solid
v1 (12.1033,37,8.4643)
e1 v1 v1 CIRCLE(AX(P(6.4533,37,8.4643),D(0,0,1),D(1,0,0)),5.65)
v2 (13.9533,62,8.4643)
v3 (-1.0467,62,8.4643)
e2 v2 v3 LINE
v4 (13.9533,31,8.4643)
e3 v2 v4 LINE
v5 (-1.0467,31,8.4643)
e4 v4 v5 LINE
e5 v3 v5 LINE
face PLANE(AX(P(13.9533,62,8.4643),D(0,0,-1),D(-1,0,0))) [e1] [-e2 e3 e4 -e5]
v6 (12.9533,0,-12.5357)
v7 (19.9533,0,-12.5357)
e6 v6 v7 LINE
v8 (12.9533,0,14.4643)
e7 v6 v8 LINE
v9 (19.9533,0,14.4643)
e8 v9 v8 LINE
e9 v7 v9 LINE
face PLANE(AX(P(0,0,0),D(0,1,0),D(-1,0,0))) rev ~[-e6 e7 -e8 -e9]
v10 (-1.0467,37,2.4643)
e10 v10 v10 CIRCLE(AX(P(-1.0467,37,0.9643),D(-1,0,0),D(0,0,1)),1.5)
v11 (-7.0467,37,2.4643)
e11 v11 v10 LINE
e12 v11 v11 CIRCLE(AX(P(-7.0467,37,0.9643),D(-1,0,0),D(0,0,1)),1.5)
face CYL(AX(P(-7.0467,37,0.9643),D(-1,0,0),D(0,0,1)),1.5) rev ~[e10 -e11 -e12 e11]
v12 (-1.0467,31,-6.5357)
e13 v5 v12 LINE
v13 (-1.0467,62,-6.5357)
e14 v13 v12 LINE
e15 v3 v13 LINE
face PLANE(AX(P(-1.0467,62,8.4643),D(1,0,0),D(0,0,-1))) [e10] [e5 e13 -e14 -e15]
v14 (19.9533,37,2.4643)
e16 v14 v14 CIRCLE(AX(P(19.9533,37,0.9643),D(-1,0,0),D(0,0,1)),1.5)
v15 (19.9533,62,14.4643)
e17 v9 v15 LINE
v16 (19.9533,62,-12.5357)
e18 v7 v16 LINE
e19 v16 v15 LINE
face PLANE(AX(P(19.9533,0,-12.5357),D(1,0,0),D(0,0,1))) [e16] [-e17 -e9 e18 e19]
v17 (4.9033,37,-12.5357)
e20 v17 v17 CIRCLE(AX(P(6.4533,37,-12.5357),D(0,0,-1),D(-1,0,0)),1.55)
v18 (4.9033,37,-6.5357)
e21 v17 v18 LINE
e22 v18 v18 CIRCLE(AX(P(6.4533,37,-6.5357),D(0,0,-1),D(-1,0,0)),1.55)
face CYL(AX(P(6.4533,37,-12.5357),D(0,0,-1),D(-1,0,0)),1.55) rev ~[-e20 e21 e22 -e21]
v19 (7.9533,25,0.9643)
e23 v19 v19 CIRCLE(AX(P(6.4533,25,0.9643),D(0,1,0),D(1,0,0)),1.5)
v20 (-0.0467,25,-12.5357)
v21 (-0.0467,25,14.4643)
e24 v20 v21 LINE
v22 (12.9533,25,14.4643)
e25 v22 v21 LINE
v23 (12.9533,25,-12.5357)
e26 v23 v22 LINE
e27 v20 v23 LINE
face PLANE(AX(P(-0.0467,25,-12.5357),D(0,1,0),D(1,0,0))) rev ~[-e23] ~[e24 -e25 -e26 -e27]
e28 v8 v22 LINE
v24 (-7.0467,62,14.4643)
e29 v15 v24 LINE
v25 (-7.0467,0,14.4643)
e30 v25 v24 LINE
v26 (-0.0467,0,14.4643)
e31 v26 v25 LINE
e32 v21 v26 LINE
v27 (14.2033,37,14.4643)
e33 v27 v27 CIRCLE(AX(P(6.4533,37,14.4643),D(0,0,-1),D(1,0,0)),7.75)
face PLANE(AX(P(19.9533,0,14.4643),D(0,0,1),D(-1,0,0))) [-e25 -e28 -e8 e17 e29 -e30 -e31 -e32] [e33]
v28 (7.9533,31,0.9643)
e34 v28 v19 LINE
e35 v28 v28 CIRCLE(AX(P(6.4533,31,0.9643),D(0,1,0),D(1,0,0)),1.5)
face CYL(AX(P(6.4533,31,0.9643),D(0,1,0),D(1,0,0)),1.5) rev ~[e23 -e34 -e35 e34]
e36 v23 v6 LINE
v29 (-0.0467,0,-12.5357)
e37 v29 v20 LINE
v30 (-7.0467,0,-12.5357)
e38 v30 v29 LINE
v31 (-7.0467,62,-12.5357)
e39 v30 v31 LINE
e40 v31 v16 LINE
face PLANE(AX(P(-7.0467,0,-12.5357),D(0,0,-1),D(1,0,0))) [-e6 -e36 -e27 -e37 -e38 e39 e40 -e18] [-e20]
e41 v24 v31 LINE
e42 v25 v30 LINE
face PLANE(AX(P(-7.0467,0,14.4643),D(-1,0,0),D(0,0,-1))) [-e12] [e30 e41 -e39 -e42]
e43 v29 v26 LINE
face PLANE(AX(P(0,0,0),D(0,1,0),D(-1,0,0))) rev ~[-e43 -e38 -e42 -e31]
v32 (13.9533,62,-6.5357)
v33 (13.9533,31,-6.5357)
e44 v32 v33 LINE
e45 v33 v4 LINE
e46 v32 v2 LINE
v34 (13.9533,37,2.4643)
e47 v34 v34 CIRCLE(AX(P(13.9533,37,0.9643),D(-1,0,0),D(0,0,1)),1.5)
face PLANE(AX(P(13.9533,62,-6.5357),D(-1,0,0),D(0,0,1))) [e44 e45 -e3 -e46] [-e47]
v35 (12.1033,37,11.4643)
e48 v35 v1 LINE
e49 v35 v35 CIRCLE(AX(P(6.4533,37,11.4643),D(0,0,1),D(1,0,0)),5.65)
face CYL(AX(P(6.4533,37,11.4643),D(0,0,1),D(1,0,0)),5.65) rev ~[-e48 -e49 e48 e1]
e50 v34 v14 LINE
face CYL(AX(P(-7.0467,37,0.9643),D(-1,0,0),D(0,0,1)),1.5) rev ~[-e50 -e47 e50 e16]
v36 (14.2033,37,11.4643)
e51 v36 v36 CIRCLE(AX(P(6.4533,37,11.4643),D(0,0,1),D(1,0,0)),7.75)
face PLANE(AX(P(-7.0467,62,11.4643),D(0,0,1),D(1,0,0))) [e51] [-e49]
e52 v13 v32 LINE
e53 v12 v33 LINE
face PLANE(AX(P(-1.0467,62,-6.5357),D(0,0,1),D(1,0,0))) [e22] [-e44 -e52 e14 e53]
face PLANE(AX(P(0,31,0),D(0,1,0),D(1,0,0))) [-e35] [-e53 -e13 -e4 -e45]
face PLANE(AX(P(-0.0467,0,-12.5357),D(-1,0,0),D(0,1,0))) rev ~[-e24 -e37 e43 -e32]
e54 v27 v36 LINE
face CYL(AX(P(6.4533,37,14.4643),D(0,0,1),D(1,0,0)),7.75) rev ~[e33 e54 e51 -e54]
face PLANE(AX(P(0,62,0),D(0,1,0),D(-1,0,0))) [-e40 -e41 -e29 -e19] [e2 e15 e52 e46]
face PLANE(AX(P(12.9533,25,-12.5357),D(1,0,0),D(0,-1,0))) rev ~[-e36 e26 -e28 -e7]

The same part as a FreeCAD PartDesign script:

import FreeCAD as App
import Part
import Sketcher


def add_polygon(sketch, points):
    """Adds a closed chain of lines whose ends are joined by coincident constraints."""
    first, n = sketch.GeometryCount, len(points)
    for a, b in zip(points, points[1:] + points[:1]):
        sketch.addGeometry(Part.LineSegment(App.Vector(*a, 0), App.Vector(*b, 0)), False)
    for i in range(n):
        sketch.addConstraint(Sketcher.Constraint("Coincident", first + i, 2, first + (i + 1) % n, 1))

doc = App.newDocument("Part")
body = doc.addObject("PartDesign::Body", "Body")

# Sketch on XZ plane
sketch1 = body.newObject("Sketcher::SketchObject", "Sketch")
sketch1.AttachmentSupport = (doc.getObject("XZ_Plane"), [""])
sketch1.MapMode = "FlatFace"
add_polygon(sketch1, [(-7, 14), (20, 14), (20, -13), (-7, -13)])  # lines 0-3
sketch1.addConstraint(Sketcher.Constraint("Horizontal", 0))
sketch1.addConstraint(Sketcher.Constraint("Vertical", 1))
sketch1.addConstraint(Sketcher.Constraint("Horizontal", 2))
sketch1.addConstraint(Sketcher.Constraint("Vertical", 3))
sketch1.addConstraint(Sketcher.Constraint("Equal", 2, 1))
sketch1.addConstraint(Sketcher.Constraint("DistanceX", 0, 1, 0, 2, 27.0))
sketch1.addConstraint(Sketcher.Constraint("DistanceX", -1, 1, 0, 2, 19.9533))
sketch1.addConstraint(Sketcher.Constraint("DistanceY", -1, 1, 0, 2, 14.4643))
pad1 = body.newObject("PartDesign::Pad", "Pad")
pad1.Profile = sketch1
pad1.Length = 62
pad1.Reversed = True

# Sketch on XZ plane
sketch2 = body.newObject("Sketcher::SketchObject", "Sketch001")
sketch2.AttachmentSupport = (doc.getObject("XZ_Plane"), [""])
sketch2.MapMode = "FlatFace"
sketch2.AttachmentOffset = App.Placement(App.Vector(0, 0, -62), App.Rotation())
add_polygon(sketch2, [(14, -7), (-1, -7), (-1, 8), (14, 8)])  # lines 0-3
sketch2.addConstraint(Sketcher.Constraint("Horizontal", 0))
sketch2.addConstraint(Sketcher.Constraint("Vertical", 1))
sketch2.addConstraint(Sketcher.Constraint("Horizontal", 2))
sketch2.addConstraint(Sketcher.Constraint("Vertical", 3))
sketch2.addConstraint(Sketcher.Constraint("Equal", 2, 1))
sketch2.addConstraint(Sketcher.Constraint("DistanceX", 0, 2, 0, 1, 15.0))
sketch2.addConstraint(Sketcher.Constraint("DistanceX", 0, 2, -1, 1, 1.0467))
sketch2.addConstraint(Sketcher.Constraint("DistanceY", 0, 2, -1, 1, 6.5357))
pocket1 = body.newObject("PartDesign::Pocket", "Pocket")
pocket1.Profile = sketch2
pocket1.Length = 31
pocket1.Reversed = True

# Sketch on XY plane
sketch3 = body.newObject("Sketcher::SketchObject", "Sketch002")
sketch3.AttachmentSupport = (doc.getObject("XY_Plane"), [""])
sketch3.MapMode = "FlatFace"
sketch3.AttachmentOffset = App.Placement(App.Vector(0, 0, -12.5357), App.Rotation())
add_polygon(sketch3, [(13, 0), (0, 0), (0, 25), (13, 25)])  # lines 0-3
sketch3.addConstraint(Sketcher.Constraint("Horizontal", 0))
sketch3.addConstraint(Sketcher.Constraint("Vertical", 1))
sketch3.addConstraint(Sketcher.Constraint("Horizontal", 2))
sketch3.addConstraint(Sketcher.Constraint("Vertical", 3))
sketch3.addConstraint(Sketcher.Constraint("PointOnObject", 0, 2, -1))
sketch3.addConstraint(Sketcher.Constraint("DistanceY", 1, 1, 1, 2, 25.0))
sketch3.addConstraint(Sketcher.Constraint("DistanceX", 0, 2, 0, 1, 13.0))
sketch3.addConstraint(Sketcher.Constraint("DistanceX", 0, 2, -1, 1, 0.0467))
pocket2 = body.newObject("PartDesign::Pocket", "Pocket001")
pocket2.Profile = sketch3
pocket2.Length = 30
pocket2.Reversed = True

# Sketch on XY plane
sketch4 = body.newObject("Sketcher::SketchObject", "Sketch003")
sketch4.AttachmentSupport = (doc.getObject("XY_Plane"), [""])
sketch4.MapMode = "FlatFace"
sketch4.AttachmentOffset = App.Placement(App.Vector(0, 0, -12.5357), App.Rotation())
sketch4.addGeometry(Part.Circle(App.Vector(6.5, 37, 0), App.Vector(0, 0, 1), 1.6), False)
sketch4.addConstraint(Sketcher.Constraint("Diameter", 0, 3.1))
sketch4.addConstraint(Sketcher.Constraint("DistanceY", -1, 1, 0, 3, 37.0))
sketch4.addConstraint(Sketcher.Constraint("DistanceX", -1, 1, 0, 3, 6.4533))
pocket3 = body.newObject("PartDesign::Pocket", "Pocket002")
pocket3.Profile = sketch4
pocket3.Length = 7
pocket3.Reversed = True

# Sketch on XY plane
sketch5 = body.newObject("Sketcher::SketchObject", "Sketch004")
sketch5.AttachmentSupport = (doc.getObject("XY_Plane"), [""])
sketch5.MapMode = "FlatFace"
sketch5.AttachmentOffset = App.Placement(App.Vector(0, 0, 14.4643), App.Rotation())
sketch5.addGeometry(Part.Circle(App.Vector(6, 37, 0), App.Vector(0, 0, 1), 8), False)
sketch5.addConstraint(Sketcher.Constraint("Diameter", 0, 15.5))
sketch5.addConstraint(Sketcher.Constraint("DistanceY", -1, 1, 0, 3, 37.0))
sketch5.addConstraint(Sketcher.Constraint("DistanceX", -1, 1, 0, 3, 6.4533))
pocket4 = body.newObject("PartDesign::Pocket", "Pocket003")
pocket4.Profile = sketch5
pocket4.Length = 3

# Sketch on XY plane
sketch6 = body.newObject("Sketcher::SketchObject", "Sketch005")
sketch6.AttachmentSupport = (doc.getObject("XY_Plane"), [""])
sketch6.MapMode = "FlatFace"
sketch6.AttachmentOffset = App.Placement(App.Vector(0, 0, 11.4643), App.Rotation())
sketch6.addGeometry(Part.Circle(App.Vector(6, 37, 0), App.Vector(0, 0, 1), 6), False)
sketch6.addConstraint(Sketcher.Constraint("Diameter", 0, 11.3))
sketch6.addConstraint(Sketcher.Constraint("DistanceY", -1, 1, 0, 3, 37.0))
sketch6.addConstraint(Sketcher.Constraint("DistanceX", -1, 1, 0, 3, 6.4533))
pocket5 = body.newObject("PartDesign::Pocket", "Pocket004")
pocket5.Profile = sketch6
pocket5.Length = 3

# Sketch on YZ plane
sketch7 = body.newObject("Sketcher::SketchObject", "Sketch006")
sketch7.AttachmentSupport = (doc.getObject("YZ_Plane"), [""])
sketch7.MapMode = "FlatFace"
sketch7.AttachmentOffset = App.Placement(App.Vector(0, 0, -7.0467), App.Rotation())
sketch7.addGeometry(Part.Circle(App.Vector(37, 1, 0), App.Vector(0, 0, 1), 1.5), False)
sketch7.addConstraint(Sketcher.Constraint("Diameter", 0, 3.0))
sketch7.addConstraint(Sketcher.Constraint("DistanceX", -1, 1, 0, 3, 37.0))
sketch7.addConstraint(Sketcher.Constraint("DistanceY", -1, 1, 0, 3, 0.9643))
pocket6 = body.newObject("PartDesign::Pocket", "Pocket005")
pocket6.Profile = sketch7
pocket6.Type = "ThroughAll"
pocket6.Reversed = True

# Sketch on XZ plane
sketch8 = body.newObject("Sketcher::SketchObject", "Sketch007")
sketch8.AttachmentSupport = (doc.getObject("XZ_Plane"), [""])
sketch8.MapMode = "FlatFace"
sketch8.AttachmentOffset = App.Placement(App.Vector(0, 0, -31), App.Rotation())
sketch8.addGeometry(Part.Circle(App.Vector(6.5, 1, 0), App.Vector(0, 0, 1), 1.5), False)
sketch8.addConstraint(Sketcher.Constraint("Diameter", 0, 3.0))
sketch8.addConstraint(Sketcher.Constraint("DistanceX", -1, 1, 0, 3, 6.4533))
sketch8.addConstraint(Sketcher.Constraint("DistanceY", -1, 1, 0, 3, 0.9643))
pocket7 = body.newObject("PartDesign::Pocket", "Pocket006")
pocket7.Profile = sketch8
pocket7.Type = "ThroughAll"
pocket7.Reversed = True

doc.recompute()
